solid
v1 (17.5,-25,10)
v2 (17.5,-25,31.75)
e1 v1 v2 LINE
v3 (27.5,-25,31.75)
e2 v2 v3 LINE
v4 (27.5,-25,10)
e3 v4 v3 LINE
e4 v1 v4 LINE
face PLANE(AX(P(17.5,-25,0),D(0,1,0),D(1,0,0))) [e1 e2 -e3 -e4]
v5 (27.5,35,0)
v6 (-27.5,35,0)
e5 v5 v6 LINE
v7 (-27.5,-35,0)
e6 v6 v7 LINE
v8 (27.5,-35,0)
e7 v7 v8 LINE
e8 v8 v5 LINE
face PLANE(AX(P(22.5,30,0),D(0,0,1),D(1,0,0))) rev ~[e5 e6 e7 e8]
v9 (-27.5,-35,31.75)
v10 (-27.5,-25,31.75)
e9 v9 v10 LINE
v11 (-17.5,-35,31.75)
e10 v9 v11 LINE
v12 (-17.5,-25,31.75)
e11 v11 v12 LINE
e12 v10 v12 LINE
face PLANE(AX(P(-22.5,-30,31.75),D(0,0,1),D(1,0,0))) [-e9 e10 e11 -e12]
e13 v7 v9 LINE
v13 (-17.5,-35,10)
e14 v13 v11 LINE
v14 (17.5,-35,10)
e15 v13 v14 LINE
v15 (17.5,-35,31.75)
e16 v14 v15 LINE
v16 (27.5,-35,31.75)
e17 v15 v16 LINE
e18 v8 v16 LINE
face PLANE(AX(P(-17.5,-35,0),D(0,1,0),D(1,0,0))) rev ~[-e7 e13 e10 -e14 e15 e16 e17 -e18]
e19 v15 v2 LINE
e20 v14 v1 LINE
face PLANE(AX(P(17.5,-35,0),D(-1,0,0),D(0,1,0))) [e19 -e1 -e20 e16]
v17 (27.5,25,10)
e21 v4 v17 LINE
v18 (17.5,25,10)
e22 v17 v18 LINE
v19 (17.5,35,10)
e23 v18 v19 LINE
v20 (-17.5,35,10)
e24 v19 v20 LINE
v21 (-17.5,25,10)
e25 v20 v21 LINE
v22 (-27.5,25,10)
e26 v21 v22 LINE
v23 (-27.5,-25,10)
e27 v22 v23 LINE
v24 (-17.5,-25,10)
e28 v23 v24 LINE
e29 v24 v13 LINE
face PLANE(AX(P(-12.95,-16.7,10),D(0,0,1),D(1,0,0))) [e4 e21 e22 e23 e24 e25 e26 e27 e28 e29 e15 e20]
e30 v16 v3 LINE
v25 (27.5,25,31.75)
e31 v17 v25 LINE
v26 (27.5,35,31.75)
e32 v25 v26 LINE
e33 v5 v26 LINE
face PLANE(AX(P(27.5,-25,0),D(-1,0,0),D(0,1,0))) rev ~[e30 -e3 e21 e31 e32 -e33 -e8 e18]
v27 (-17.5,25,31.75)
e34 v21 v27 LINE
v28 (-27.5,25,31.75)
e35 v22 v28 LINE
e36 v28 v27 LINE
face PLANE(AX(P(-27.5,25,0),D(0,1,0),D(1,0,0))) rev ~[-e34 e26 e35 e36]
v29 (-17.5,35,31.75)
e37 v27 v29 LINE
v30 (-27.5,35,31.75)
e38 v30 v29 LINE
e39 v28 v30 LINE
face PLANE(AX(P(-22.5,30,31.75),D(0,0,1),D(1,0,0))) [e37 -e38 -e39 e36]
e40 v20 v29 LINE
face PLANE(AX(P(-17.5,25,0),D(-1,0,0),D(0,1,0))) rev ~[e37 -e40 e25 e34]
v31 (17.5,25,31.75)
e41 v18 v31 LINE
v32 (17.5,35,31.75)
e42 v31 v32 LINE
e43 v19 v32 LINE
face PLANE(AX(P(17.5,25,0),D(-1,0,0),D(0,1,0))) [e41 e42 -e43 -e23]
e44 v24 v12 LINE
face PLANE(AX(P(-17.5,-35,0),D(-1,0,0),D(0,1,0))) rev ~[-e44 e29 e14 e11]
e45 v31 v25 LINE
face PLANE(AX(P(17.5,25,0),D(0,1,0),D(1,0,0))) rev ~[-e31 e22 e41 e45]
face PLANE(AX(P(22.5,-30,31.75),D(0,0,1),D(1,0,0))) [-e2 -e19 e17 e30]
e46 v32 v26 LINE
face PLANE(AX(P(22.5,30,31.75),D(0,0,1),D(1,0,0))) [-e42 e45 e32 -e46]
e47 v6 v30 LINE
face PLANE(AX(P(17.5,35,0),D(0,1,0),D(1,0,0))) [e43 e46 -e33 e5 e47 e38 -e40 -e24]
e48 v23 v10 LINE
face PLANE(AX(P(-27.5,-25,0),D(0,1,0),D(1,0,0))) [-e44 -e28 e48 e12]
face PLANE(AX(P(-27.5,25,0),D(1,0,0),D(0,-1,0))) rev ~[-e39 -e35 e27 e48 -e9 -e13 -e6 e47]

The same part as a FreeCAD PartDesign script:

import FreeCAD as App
import Part
import Sketcher
Q = App.Units.Quantity

doc = App.newDocument("Part")
params = doc.addObject("Spreadsheet::Sheet", "Params")
for row, (alias, value) in enumerate([
    ("sketch1_width", "35 mm"),
    ("sketch1_width2", "10 mm"),
    ("sketch1_height", "50 mm"),
    ("pad1_length", "10 mm"),
    ("sketch2_width", "10 mm"),
    ("pad2_length", "31.75 mm"),
], start=1):
    params.set(f"A{row}", alias)
    params.set(f"B{row}", "=" + value)
    params.setAlias(f"B{row}", alias)

body = doc.addObject("PartDesign::Body", "Body")

# Sketch on XY plane
sketch1 = body.newObject("Sketcher::SketchObject", "Sketch")
sketch1.AttachmentSupport = (doc.getObject("XY_Plane"), [""])
sketch1.MapMode = "FlatFace"
sketch1.addGeometry([
    Part.LineSegment(App.Vector(-18, -35, 0), App.Vector(18, -35, 0)),  # 0
    Part.LineSegment(App.Vector(18, -35, 0), App.Vector(18, -25, 0)),  # 1
    Part.LineSegment(App.Vector(18, -25, 0), App.Vector(28, -25, 0)),  # 2
    Part.LineSegment(App.Vector(28, -25, 0), App.Vector(28, 25, 0)),  # 3
    Part.LineSegment(App.Vector(28, 25, 0), App.Vector(18, 25, 0)),  # 4
    Part.LineSegment(App.Vector(18, 25, 0), App.Vector(18, 35, 0)),  # 5
    Part.LineSegment(App.Vector(18, 35, 0), App.Vector(-18, 35, 0)),  # 6
    Part.LineSegment(App.Vector(-18, 35, 0), App.Vector(-18, 25, 0)),  # 7
    Part.LineSegment(App.Vector(-18, 25, 0), App.Vector(-28, 25, 0)),  # 8
    Part.LineSegment(App.Vector(-28, 25, 0), App.Vector(-28, -25, 0)),  # 9
    Part.LineSegment(App.Vector(-28, -25, 0), App.Vector(-18, -25, 0)),  # 10
    Part.LineSegment(App.Vector(-18, -25, 0), App.Vector(-18, -35, 0)),  # 11
], False)
sketch1.addConstraint([
    Sketcher.Constraint("Coincident", 0, 2, 1, 1),
    Sketcher.Constraint("Coincident", 1, 2, 2, 1),
    Sketcher.Constraint("Coincident", 2, 2, 3, 1),
    Sketcher.Constraint("Coincident", 3, 2, 4, 1),
    Sketcher.Constraint("Coincident", 4, 2, 5, 1),
    Sketcher.Constraint("Coincident", 5, 2, 6, 1),
    Sketcher.Constraint("Coincident", 6, 2, 7, 1),
    Sketcher.Constraint("Coincident", 7, 2, 8, 1),
    Sketcher.Constraint("Coincident", 8, 2, 9, 1),
    Sketcher.Constraint("Coincident", 9, 2, 10, 1),
    Sketcher.Constraint("Coincident", 10, 2, 11, 1),
    Sketcher.Constraint("Coincident", 11, 2, 0, 1),
    Sketcher.Constraint("Horizontal", 0),
    Sketcher.Constraint("Vertical", 1),
    Sketcher.Constraint("Horizontal", 2),
    Sketcher.Constraint("Vertical", 3),
    Sketcher.Constraint("Horizontal", 4),
    Sketcher.Constraint("Vertical", 5),
    Sketcher.Constraint("Horizontal", 6),
    Sketcher.Constraint("Vertical", 7),
    Sketcher.Constraint("Horizontal", 8),
    Sketcher.Constraint("Vertical", 9),
    Sketcher.Constraint("Horizontal", 10),
    Sketcher.Constraint("Vertical", 11),
    Sketcher.Constraint("Symmetric", 0, 2, 6, 2, -1, 1),
    Sketcher.Constraint("Symmetric", 2, 2, 8, 2, -1, 1),
    Sketcher.Constraint("Symmetric", 4, 2, 10, 2, -1, 1),
    Sketcher.Constraint("Symmetric", 4, 2, 7, 2, -2),
    Sketcher.Constraint("Equal", 10, 1),
    Sketcher.Constraint("DistanceX", 0, 1, 0, 2, Q("35 mm")),
    Sketcher.Constraint("DistanceX", 2, 1, 2, 2, Q("10 mm")),
    Sketcher.Constraint("DistanceY", 3, 1, 3, 2, Q("50 mm")),
])
sketch1.setExpression("Constraints[29]", "Params.sketch1_width")
sketch1.setExpression("Constraints[30]", "Params.sketch1_width2")
sketch1.setExpression("Constraints[31]", "Params.sketch1_height")
pad1 = body.newObject("PartDesign::Pad", "Pad")
pad1.Profile = sketch1
pad1.setExpression("Length", "Params.pad1_length")

# Sketch on XY plane
sketch2 = body.newObject("Sketcher::SketchObject", "Sketch001")
sketch2.AttachmentSupport = (doc.getObject("XY_Plane"), [""])
sketch2.MapMode = "FlatFace"
sketch2.addGeometry([
    Part.LineSegment(App.Vector(18, 35, 0), App.Vector(18, 25, 0)),  # 0
    Part.LineSegment(App.Vector(18, 25, 0), App.Vector(28, 25, 0)),  # 1
    Part.LineSegment(App.Vector(28, 25, 0), App.Vector(28, 35, 0)),  # 2
    Part.LineSegment(App.Vector(28, 35, 0), App.Vector(18, 35, 0)),  # 3
    Part.LineSegment(App.Vector(-28, 35, 0), App.Vector(-28, 25, 0)),  # 4
    Part.LineSegment(App.Vector(-28, 25, 0), App.Vector(-18, 25, 0)),  # 5
    Part.LineSegment(App.Vector(-18, 25, 0), App.Vector(-18, 35, 0)),  # 6
    Part.LineSegment(App.Vector(-18, 35, 0), App.Vector(-28, 35, 0)),  # 7
    Part.LineSegment(App.Vector(-28, -25, 0), App.Vector(-28, -35, 0)),  # 8
    Part.LineSegment(App.Vector(-28, -35, 0), App.Vector(-18, -35, 0)),  # 9
    Part.LineSegment(App.Vector(-18, -35, 0), App.Vector(-18, -25, 0)),  # 10
    Part.LineSegment(App.Vector(-18, -25, 0), App.Vector(-28, -25, 0)),  # 11
    Part.LineSegment(App.Vector(18, -25, 0), App.Vector(18, -35, 0)),  # 12
    Part.LineSegment(App.Vector(18, -35, 0), App.Vector(28, -35, 0)),  # 13
    Part.LineSegment(App.Vector(28, -35, 0), App.Vector(28, -25, 0)),  # 14
    Part.LineSegment(App.Vector(28, -25, 0), App.Vector(18, -25, 0)),  # 15
], False)
sketch2.addConstraint([
    Sketcher.Constraint("Coincident", 0, 2, 1, 1),
    Sketcher.Constraint("Coincident", 1, 2, 2, 1),
    Sketcher.Constraint("Coincident", 2, 2, 3, 1),
    Sketcher.Constraint("Coincident", 3, 2, 0, 1),
    Sketcher.Constraint("Coincident", 4, 2, 5, 1),
    Sketcher.Constraint("Coincident", 5, 2, 6, 1),
    Sketcher.Constraint("Coincident", 6, 2, 7, 1),
    Sketcher.Constraint("Coincident", 7, 2, 4, 1),
    Sketcher.Constraint("Coincident", 8, 2, 9, 1),
    Sketcher.Constraint("Coincident", 9, 2, 10, 1),
    Sketcher.Constraint("Coincident", 10, 2, 11, 1),
    Sketcher.Constraint("Coincident", 11, 2, 8, 1),
    Sketcher.Constraint("Coincident", 12, 2, 13, 1),
    Sketcher.Constraint("Coincident", 13, 2, 14, 1),
    Sketcher.Constraint("Coincident", 14, 2, 15, 1),
    Sketcher.Constraint("Coincident", 15, 2, 12, 1),
    Sketcher.Constraint("Vertical", 0),
    Sketcher.Constraint("Horizontal", 1),
    Sketcher.Constraint("Vertical", 2),
    Sketcher.Constraint("Horizontal", 3),
    Sketcher.Constraint("Vertical", 4),
    Sketcher.Constraint("Horizontal", 5),
    Sketcher.Constraint("Vertical", 6),
    Sketcher.Constraint("Horizontal", 7),
    Sketcher.Constraint("Vertical", 8),
    Sketcher.Constraint("Horizontal", 9),
    Sketcher.Constraint("Vertical", 10),
    Sketcher.Constraint("Horizontal", 11),
    Sketcher.Constraint("Vertical", 12),
    Sketcher.Constraint("Horizontal", 13),
    Sketcher.Constraint("Vertical", 14),
    Sketcher.Constraint("Horizontal", 15),
    Sketcher.Constraint("Symmetric", 2, 2, 8, 2, -1, 1),
    Sketcher.Constraint("Symmetric", 0, 2, 10, 2, -1, 1),
    Sketcher.Constraint("Symmetric", 6, 2, 12, 2, -1, 1),
    Sketcher.Constraint("Symmetric", 4, 2, 14, 2, -1, 1),
    Sketcher.Constraint("Symmetric", 1, 2, 4, 2, -2),
    Sketcher.Constraint("Symmetric", 3, 2, 6, 2, -2),
    Sketcher.Constraint("Equal", 15, 0),
    Sketcher.Constraint("DistanceX", 1, 1, 1, 2, Q("10 mm")),
    Sketcher.Constraint("DistanceY", -1, 1, 0, 2, Q("25 mm")),
    Sketcher.Constraint("DistanceX", 4, 2, 0, 2, Q("45 mm")),
])
sketch2.setExpression("Constraints[39]", "Params.sketch2_width")
pad2 = body.newObject("PartDesign::Pad", "Pad001")
pad2.Profile = sketch2
pad2.setExpression("Length", "Params.pad2_length")

doc.recompute()
